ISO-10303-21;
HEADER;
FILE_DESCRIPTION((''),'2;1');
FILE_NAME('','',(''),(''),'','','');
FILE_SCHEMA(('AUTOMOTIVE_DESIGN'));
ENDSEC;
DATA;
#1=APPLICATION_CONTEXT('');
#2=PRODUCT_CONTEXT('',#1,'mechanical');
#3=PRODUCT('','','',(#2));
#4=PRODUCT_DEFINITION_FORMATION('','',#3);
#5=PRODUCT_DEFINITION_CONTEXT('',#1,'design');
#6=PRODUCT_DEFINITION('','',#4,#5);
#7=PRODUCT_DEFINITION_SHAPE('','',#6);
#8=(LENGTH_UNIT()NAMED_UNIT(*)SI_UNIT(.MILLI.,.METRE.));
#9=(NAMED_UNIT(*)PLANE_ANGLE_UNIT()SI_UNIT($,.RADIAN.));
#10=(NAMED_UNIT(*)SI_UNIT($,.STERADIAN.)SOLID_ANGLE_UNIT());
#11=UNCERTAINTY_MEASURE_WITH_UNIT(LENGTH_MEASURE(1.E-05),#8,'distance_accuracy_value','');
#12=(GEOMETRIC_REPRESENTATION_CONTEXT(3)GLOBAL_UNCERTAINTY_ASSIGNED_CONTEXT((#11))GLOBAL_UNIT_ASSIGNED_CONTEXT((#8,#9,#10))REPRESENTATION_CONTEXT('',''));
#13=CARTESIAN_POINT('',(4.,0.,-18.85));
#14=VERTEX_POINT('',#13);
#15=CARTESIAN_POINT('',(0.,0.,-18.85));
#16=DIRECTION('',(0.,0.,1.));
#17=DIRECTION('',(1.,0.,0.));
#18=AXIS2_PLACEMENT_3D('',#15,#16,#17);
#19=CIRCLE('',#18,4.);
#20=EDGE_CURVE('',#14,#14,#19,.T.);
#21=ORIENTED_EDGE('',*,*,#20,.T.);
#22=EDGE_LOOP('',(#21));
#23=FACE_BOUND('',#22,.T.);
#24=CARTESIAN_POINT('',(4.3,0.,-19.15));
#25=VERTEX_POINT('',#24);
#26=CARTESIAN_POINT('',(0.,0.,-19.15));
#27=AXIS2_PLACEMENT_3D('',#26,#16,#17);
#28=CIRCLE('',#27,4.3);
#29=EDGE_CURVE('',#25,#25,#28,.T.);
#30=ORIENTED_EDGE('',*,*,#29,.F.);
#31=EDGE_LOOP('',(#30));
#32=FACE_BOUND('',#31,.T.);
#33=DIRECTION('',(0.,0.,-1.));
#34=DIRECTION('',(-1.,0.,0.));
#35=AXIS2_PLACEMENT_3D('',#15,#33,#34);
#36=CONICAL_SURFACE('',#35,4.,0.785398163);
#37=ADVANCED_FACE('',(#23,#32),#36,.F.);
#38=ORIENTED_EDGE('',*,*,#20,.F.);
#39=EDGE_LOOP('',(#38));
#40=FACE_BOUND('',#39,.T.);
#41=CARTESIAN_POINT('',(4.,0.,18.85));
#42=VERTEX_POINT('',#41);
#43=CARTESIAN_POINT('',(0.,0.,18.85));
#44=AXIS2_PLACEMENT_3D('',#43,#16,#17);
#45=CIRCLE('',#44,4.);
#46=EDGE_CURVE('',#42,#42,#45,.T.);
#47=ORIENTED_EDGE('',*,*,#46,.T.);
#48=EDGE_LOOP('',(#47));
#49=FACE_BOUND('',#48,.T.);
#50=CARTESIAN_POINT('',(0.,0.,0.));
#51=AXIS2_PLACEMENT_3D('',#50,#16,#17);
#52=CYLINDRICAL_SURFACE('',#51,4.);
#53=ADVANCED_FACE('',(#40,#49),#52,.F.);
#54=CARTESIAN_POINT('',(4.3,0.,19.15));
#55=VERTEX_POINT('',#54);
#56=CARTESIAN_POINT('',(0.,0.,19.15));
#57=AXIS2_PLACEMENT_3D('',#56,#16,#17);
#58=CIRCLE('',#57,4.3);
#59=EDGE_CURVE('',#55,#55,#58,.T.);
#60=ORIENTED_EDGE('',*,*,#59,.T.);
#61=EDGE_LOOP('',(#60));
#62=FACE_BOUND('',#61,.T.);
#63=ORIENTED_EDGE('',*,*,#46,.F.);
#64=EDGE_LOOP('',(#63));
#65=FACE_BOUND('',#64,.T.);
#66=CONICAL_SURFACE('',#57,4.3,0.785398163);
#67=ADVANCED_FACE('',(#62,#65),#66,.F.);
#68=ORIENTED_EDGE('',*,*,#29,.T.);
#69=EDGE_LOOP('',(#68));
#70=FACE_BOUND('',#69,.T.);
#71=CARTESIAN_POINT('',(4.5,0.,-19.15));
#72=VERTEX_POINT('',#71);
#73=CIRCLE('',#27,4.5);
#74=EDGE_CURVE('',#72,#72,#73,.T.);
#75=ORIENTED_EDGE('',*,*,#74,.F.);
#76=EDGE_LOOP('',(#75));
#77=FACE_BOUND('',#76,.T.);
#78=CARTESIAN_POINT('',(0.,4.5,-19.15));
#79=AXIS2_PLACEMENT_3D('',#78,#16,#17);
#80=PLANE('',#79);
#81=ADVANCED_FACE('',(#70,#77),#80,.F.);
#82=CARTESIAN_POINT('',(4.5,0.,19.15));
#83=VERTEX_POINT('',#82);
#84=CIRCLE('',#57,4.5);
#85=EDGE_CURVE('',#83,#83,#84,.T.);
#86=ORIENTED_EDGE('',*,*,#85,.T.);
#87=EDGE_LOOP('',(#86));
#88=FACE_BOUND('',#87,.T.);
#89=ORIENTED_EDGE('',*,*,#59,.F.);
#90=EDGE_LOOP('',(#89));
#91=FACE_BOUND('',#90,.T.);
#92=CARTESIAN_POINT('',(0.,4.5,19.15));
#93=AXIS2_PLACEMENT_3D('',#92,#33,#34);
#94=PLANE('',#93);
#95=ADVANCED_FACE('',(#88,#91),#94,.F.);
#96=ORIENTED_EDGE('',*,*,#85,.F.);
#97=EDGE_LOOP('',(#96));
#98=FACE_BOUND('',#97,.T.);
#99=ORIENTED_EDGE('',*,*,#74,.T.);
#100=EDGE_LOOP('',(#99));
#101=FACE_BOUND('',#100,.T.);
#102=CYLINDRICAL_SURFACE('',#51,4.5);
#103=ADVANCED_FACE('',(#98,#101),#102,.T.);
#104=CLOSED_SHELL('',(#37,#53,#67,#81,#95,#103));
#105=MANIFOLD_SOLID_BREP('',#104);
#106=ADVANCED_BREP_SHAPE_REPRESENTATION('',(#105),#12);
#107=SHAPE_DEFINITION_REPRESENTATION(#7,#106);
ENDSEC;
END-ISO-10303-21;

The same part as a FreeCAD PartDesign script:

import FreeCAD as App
import Part
import Sketcher

V = App.Vector

doc = App.newDocument("Part")
params = doc.addObject("Spreadsheet::Sheet", "Params")
for row, (alias, value) in enumerate([
    ("sketch1_width", "0.2 mm"),
    ("sketch1_height", "38.3 mm"),
    ("sketch1_height2", "37.7 mm"),
    ("revolution_angle", "360 deg"),
], start=1):
    params.set(f"A{row}", alias)
    params.set(f"B{row}", "=" + value)
    params.setAlias(f"B{row}", alias)

body = doc.addObject("PartDesign::Body", "Body")

# Sketch on YZ plane
sketch1 = doc.addObject("Sketcher::SketchObject", "Sketch")
body.addObject(sketch1)
sketch1.AttachmentSupport = (doc.YZ_Plane, [""])
sketch1.MapMode = "FlatFace"
sketch1.addGeometry([
    Part.LineSegment(V(4.5, -19.15, 0), V(4.5, 19.15, 0)),  # 0
    Part.LineSegment(V(4.5, 19.15, 0), V(4.3, 19.15, 0)),  # 1
    Part.LineSegment(V(4.3, 19.15, 0), V(4, 18.85, 0)),  # 2
    Part.LineSegment(V(4, 18.85, 0), V(4, -18.85, 0)),  # 3
    Part.LineSegment(V(4, -18.85, 0), V(4.3, -19.15, 0)),  # 4
    Part.LineSegment(V(4.3, -19.15, 0), V(4.5, -19.15, 0)),  # 5
], False)
sketch1.addConstraint([
    Sketcher.Constraint("Coincident", 0, 2, 1, 1),
    Sketcher.Constraint("Coincident", 1, 2, 2, 1),
    Sketcher.Constraint("Coincident", 2, 2, 3, 1),
    Sketcher.Constraint("Coincident", 3, 2, 4, 1),
    Sketcher.Constraint("Coincident", 4, 2, 5, 1),
    Sketcher.Constraint("Coincident", 5, 2, 0, 1),
    Sketcher.Constraint("Vertical", 0),
    Sketcher.Constraint("Horizontal", 1),
    Sketcher.Constraint("Vertical", 3),
    Sketcher.Constraint("Horizontal", 5),
    Sketcher.Constraint("Symmetric", 1, 2, 4, 2, -1),
    Sketcher.Constraint("Perpendicular", 2, 4),
    Sketcher.Constraint("Equal", 2, 4),
    Sketcher.Constraint("DistanceX", 1, 2, 1, 1, 0.2),
    Sketcher.Constraint("DistanceY", 0, 1, 0, 2, 38.3),
    Sketcher.Constraint("DistanceY", 3, 2, 3, 1, 37.7),
    Sketcher.Constraint("DistanceX", -1, 1, 2, 2, 4.0),
])
sketch1.setExpression("Constraints[13]", "Params.sketch1_width")
sketch1.setExpression("Constraints[14]", "Params.sketch1_height")
sketch1.setExpression("Constraints[15]", "Params.sketch1_height2")
revolution = doc.addObject("PartDesign::Revolution", "Revolution")
body.addObject(revolution)
revolution.Profile = sketch1
revolution.ReferenceAxis = (sketch1, ["V_Axis"])
revolution.setExpression("Angle", "Params.revolution_angle")

doc.recompute()
